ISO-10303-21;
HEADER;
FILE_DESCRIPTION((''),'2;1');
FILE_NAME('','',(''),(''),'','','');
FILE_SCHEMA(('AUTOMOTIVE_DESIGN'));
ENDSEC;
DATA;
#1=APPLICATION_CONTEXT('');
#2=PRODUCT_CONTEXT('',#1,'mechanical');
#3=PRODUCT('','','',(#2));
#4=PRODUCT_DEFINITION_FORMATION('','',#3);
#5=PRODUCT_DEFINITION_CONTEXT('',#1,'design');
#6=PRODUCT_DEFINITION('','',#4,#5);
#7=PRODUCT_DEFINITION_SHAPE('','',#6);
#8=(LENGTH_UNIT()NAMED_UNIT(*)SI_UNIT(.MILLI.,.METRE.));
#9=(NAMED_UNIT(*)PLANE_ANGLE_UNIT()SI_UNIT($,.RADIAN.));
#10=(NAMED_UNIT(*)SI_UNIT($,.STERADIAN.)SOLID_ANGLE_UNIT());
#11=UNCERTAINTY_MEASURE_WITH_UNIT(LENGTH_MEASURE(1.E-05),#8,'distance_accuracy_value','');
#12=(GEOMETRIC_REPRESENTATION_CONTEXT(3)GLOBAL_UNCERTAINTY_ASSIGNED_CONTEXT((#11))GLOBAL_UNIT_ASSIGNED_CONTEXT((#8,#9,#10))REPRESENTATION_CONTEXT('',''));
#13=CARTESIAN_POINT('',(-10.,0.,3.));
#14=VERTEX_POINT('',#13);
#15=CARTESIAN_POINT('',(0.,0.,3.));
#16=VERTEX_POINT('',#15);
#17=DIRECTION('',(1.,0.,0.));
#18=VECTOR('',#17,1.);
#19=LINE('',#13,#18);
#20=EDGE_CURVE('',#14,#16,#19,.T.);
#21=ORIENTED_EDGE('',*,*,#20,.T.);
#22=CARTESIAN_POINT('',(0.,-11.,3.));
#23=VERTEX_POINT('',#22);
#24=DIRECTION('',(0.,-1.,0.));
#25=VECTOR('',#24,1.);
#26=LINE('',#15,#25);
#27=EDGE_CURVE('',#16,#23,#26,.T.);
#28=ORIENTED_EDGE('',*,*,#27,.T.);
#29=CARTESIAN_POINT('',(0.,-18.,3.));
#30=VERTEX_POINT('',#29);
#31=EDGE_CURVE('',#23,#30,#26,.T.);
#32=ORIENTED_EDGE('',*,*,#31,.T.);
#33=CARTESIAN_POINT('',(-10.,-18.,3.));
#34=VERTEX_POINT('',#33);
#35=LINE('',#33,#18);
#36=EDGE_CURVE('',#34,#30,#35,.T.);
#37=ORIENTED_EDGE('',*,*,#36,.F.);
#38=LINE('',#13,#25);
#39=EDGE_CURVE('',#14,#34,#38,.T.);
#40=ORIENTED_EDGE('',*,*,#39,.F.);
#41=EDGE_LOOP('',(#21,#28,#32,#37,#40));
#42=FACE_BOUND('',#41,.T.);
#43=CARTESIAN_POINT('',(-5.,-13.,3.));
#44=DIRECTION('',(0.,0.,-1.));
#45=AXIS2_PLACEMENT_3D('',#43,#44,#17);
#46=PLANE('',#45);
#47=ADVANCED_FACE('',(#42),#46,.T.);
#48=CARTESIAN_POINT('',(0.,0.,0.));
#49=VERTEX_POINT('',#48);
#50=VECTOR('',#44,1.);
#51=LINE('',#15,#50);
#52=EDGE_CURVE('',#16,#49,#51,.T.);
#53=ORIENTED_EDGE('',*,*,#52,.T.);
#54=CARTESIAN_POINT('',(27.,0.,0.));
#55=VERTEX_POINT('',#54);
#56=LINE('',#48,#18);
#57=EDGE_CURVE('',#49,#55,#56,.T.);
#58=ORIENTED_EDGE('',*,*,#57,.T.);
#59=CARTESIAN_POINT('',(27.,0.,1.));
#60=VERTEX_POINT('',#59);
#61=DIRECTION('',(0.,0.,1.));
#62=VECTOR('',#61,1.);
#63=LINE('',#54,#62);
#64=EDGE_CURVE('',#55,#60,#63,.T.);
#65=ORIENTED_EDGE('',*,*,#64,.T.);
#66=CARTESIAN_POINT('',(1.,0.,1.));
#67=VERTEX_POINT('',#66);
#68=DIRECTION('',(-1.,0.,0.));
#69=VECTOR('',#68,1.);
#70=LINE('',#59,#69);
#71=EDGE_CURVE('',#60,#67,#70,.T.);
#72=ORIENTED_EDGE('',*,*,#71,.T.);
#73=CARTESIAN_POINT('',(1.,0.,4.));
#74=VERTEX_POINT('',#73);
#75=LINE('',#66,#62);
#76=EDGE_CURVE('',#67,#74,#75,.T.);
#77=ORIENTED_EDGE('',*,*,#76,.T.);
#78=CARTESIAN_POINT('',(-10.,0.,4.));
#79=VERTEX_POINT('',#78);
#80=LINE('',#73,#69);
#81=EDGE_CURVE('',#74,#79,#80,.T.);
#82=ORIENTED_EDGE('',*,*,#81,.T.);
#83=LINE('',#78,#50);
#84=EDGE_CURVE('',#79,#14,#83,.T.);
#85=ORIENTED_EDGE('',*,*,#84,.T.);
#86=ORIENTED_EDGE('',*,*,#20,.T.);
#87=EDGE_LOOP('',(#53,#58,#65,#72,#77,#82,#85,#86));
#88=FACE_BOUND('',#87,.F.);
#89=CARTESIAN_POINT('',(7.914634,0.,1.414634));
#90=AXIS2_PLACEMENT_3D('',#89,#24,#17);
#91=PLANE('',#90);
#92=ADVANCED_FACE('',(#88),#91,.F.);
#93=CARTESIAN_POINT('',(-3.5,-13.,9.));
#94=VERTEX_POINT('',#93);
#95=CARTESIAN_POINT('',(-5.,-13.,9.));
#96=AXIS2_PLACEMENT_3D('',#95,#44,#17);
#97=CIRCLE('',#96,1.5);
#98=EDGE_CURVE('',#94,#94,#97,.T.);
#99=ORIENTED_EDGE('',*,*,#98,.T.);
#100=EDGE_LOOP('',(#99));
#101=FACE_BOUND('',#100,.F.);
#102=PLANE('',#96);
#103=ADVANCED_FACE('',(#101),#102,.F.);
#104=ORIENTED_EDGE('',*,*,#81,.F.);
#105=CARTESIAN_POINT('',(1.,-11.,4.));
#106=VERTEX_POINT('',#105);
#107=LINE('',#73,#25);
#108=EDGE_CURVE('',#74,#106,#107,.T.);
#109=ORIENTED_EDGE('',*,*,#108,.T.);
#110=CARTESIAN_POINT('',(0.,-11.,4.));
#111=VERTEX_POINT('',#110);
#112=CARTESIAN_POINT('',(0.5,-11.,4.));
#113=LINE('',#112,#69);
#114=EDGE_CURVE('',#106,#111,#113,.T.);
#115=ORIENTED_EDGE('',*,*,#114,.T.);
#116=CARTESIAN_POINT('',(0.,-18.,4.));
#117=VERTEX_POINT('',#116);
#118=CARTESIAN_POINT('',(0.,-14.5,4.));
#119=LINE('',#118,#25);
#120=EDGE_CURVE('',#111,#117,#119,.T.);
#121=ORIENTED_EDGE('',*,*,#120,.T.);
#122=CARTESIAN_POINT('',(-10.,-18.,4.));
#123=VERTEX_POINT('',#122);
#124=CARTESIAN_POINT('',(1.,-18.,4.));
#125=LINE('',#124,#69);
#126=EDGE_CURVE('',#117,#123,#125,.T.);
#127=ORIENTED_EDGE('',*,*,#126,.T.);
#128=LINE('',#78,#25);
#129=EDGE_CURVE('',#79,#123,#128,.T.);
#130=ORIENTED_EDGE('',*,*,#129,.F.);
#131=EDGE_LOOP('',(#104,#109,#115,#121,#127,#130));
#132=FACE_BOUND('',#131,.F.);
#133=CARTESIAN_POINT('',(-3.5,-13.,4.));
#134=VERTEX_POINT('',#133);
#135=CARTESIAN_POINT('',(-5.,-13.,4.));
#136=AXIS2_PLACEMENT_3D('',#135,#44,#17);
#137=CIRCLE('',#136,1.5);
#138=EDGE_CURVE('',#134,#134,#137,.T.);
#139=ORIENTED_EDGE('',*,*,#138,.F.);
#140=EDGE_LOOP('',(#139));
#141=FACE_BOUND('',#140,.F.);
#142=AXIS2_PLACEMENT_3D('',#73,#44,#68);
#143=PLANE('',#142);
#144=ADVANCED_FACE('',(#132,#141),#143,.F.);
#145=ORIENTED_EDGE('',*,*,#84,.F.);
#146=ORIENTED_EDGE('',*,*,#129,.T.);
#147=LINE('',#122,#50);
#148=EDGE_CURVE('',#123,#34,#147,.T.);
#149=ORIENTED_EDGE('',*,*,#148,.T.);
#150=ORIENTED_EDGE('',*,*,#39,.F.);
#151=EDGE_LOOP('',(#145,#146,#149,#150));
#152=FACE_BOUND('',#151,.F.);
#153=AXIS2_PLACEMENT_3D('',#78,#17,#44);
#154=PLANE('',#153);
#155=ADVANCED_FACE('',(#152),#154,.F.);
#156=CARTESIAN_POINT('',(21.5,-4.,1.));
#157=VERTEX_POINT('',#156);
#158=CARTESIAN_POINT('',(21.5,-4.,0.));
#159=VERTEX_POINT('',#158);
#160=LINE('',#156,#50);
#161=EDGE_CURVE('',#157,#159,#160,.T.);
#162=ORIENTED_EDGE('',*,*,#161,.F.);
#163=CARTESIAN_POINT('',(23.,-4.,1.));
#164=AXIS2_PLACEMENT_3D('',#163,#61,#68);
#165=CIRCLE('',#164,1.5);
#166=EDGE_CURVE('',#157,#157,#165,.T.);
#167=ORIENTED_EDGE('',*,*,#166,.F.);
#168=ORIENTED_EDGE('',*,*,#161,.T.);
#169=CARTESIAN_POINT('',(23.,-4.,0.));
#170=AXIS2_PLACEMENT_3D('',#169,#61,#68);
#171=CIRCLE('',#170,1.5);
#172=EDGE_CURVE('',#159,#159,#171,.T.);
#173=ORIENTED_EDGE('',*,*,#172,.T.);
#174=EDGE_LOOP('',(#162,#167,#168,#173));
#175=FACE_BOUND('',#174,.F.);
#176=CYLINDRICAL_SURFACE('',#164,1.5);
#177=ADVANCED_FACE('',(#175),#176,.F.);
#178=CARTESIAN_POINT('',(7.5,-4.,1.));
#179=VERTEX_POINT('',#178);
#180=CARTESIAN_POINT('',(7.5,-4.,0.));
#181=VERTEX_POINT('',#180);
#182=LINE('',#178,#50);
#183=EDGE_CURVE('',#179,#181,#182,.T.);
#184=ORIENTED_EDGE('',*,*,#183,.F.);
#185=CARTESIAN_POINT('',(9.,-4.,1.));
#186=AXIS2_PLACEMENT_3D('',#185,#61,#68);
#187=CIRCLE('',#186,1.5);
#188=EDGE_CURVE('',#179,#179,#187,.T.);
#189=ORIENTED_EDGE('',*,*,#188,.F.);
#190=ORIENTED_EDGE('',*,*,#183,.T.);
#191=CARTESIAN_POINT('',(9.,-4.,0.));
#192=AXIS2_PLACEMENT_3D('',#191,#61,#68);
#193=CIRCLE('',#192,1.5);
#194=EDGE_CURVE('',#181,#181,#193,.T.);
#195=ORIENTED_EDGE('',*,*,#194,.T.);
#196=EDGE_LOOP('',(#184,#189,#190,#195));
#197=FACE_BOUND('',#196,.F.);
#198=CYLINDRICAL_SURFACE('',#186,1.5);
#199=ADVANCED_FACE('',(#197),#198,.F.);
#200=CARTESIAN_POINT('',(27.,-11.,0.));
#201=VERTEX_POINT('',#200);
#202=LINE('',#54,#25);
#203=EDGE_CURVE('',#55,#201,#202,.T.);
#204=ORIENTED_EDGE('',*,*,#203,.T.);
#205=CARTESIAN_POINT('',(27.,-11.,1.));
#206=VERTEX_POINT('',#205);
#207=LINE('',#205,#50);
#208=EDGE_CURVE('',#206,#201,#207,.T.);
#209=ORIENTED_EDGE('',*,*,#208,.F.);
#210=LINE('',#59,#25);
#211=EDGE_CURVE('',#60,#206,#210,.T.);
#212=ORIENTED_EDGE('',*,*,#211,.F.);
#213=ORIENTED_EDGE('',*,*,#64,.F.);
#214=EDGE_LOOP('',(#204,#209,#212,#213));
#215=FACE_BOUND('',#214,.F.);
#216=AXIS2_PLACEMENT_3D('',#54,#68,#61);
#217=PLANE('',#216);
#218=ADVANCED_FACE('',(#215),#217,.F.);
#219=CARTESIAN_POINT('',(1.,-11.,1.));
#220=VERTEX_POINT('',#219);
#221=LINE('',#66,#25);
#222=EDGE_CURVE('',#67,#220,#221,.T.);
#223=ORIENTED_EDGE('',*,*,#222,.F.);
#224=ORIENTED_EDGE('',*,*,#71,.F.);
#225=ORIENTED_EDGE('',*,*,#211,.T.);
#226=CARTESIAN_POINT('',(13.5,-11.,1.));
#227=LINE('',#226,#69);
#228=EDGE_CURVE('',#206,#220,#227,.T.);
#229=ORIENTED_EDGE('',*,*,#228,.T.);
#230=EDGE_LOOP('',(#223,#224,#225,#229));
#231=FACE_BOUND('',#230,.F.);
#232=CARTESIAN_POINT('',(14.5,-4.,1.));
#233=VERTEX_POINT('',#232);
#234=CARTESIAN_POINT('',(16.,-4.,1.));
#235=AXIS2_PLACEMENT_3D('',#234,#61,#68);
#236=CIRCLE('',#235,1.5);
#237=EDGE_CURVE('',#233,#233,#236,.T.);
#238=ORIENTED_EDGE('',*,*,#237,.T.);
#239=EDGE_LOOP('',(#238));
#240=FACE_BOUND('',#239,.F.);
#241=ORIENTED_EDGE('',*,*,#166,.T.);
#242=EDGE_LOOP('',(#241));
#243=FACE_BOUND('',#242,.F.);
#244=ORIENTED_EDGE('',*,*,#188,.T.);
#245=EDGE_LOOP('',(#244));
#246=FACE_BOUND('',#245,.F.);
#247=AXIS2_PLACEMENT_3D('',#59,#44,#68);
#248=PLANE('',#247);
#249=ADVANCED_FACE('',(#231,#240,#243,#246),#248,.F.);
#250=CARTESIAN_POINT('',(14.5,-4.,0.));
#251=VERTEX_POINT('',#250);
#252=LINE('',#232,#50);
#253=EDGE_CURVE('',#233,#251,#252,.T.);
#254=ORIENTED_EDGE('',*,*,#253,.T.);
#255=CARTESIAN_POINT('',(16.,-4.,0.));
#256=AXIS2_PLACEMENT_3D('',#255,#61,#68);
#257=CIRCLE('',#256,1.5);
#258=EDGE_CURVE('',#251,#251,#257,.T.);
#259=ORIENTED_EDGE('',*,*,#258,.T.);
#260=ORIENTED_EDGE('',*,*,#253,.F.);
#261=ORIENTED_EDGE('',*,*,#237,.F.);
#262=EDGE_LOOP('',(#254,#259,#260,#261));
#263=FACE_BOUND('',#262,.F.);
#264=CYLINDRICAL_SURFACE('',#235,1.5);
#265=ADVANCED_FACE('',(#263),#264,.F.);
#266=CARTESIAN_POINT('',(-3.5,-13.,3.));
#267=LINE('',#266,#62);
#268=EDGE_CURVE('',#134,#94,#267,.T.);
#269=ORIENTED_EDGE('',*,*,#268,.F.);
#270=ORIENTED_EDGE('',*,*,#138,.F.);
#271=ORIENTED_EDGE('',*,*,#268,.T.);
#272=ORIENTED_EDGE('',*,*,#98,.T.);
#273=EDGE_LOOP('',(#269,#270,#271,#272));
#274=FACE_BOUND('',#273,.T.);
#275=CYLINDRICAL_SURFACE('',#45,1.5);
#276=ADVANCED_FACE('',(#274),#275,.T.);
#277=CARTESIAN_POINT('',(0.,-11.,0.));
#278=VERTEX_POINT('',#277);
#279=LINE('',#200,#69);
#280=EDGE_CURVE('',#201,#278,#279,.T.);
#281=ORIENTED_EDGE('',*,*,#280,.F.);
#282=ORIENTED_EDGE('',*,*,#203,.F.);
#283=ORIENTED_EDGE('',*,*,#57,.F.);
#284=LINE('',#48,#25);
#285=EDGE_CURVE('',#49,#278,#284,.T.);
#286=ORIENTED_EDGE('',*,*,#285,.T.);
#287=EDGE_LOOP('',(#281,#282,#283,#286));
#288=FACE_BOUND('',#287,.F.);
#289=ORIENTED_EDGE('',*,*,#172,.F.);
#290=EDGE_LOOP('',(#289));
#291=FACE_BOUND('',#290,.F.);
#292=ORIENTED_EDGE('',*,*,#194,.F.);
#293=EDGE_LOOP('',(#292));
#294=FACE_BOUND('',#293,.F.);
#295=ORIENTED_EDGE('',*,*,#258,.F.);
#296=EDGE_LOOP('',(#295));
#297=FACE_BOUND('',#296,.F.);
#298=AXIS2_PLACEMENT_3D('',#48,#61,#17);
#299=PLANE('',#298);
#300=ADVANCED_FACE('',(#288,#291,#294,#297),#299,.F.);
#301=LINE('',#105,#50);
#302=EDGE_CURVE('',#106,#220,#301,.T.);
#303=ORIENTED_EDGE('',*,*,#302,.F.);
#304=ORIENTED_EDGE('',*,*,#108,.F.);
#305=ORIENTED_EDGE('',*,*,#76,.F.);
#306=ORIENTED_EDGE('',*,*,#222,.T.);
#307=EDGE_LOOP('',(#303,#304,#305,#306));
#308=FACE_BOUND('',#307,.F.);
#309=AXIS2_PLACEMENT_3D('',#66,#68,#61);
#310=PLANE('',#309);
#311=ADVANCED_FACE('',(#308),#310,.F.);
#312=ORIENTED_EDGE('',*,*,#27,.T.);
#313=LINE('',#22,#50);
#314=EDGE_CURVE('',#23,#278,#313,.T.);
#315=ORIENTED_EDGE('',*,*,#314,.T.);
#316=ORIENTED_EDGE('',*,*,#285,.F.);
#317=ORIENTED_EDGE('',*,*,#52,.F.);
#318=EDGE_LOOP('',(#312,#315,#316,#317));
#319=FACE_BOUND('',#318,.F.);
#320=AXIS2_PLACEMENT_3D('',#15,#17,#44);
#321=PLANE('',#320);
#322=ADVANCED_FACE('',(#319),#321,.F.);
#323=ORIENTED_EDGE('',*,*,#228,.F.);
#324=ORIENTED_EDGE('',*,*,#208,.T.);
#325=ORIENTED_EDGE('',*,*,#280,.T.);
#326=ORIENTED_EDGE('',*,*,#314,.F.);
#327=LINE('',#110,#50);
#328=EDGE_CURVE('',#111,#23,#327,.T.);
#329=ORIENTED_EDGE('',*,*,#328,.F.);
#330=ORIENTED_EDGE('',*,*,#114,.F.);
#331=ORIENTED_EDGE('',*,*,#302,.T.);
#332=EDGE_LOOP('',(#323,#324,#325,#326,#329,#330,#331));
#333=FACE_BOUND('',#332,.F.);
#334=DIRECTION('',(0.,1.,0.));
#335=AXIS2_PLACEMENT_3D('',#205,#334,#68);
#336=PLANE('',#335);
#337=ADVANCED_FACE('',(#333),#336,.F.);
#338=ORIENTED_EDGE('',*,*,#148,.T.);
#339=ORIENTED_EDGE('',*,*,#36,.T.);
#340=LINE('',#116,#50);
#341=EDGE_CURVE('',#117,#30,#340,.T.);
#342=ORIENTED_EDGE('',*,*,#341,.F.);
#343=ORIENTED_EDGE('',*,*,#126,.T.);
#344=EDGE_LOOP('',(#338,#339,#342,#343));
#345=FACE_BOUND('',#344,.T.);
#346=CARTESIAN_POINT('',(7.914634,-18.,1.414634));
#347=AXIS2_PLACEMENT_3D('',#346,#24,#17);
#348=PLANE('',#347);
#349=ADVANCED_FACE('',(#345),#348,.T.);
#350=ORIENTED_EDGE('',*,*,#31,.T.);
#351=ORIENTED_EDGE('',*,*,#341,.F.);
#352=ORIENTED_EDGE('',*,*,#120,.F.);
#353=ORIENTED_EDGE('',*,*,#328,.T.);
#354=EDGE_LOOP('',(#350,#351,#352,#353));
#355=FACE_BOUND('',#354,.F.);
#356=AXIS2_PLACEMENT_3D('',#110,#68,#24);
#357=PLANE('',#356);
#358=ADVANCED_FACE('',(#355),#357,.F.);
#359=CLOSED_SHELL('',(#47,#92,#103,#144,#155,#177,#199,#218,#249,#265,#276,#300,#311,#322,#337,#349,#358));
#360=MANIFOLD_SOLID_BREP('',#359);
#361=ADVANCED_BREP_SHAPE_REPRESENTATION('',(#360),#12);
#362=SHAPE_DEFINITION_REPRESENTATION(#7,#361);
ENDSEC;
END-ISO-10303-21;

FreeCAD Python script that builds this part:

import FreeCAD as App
import Part
import Sketcher
Q = App.Units.Quantity

doc = App.newDocument("Part")
params = doc.addObject("Spreadsheet::Sheet", "Params")
for row, (alias, value) in enumerate([
    ("sketch1_width", "27 mm"),
    ("sketch1_width2", "26 mm"),
    ("sketch1_width3", "11 mm"),
    ("sketch1_height", "1 mm"),
    ("sketch1_height2", "3 mm"),
    ("pad1_length", "18 mm"),
    ("sketch2_width", "27 mm"),
    ("sketch2_height", "7 mm"),
    ("pocket1_length", "10 mm"),
    ("sketch3_width", "1 mm"),
    ("sketch3_height", "7 mm"),
    ("sketch4_diameter", "3 mm"),
    ("sketch5_diameter", "3 mm"),
    ("pad2_length", "6 mm"),
], start=1):
    params.set(f"A{row}", alias)
    params.set(f"B{row}", "=" + value)
    params.setAlias(f"B{row}", alias)

body = doc.addObject("PartDesign::Body", "Body")

# Sketch on XZ plane
sketch1 = doc.addObject("Sketcher::SketchObject", "Sketch")
body.addObject(sketch1)
sketch1.AttachmentSupport = (doc.XZ_Plane, [""])
sketch1.MapMode = "FlatFace"
sketch1.addGeometry(Part.LineSegment(App.Vector(0, 0, 0), App.Vector(27, 0, 0)), False)
sketch1.addGeometry(Part.LineSegment(App.Vector(27, 0, 0), App.Vector(27, 1, 0)), False)
sketch1.addGeometry(Part.LineSegment(App.Vector(27, 1, 0), App.Vector(1, 1, 0)), False)
sketch1.addGeometry(Part.LineSegment(App.Vector(1, 1, 0), App.Vector(1, 4, 0)), False)
sketch1.addGeometry(Part.LineSegment(App.Vector(1, 4, 0), App.Vector(-10, 4, 0)), False)
sketch1.addGeometry(Part.LineSegment(App.Vector(-10, 4, 0), App.Vector(-10, 3, 0)), False)
sketch1.addGeometry(Part.LineSegment(App.Vector(-10, 3, 0), App.Vector(0, 3, 0)), False)
sketch1.addGeometry(Part.LineSegment(App.Vector(0, 3, 0), App.Vector(0, 0, 0)), False)
sketch1.addConstraint(Sketcher.Constraint("Coincident", 0, 2, 1, 1))
sketch1.addConstraint(Sketcher.Constraint("Coincident", 1, 2, 2, 1))
sketch1.addConstraint(Sketcher.Constraint("Coincident", 2, 2, 3, 1))
sketch1.addConstraint(Sketcher.Constraint("Coincident", 3, 2, 4, 1))
sketch1.addConstraint(Sketcher.Constraint("Coincident", 4, 2, 5, 1))
sketch1.addConstraint(Sketcher.Constraint("Coincident", 5, 2, 6, 1))
sketch1.addConstraint(Sketcher.Constraint("Coincident", 6, 2, 7, 1))
sketch1.addConstraint(Sketcher.Constraint("Coincident", 7, 2, 0, 1))
sketch1.addConstraint(Sketcher.Constraint("Horizontal", 0))
sketch1.addConstraint(Sketcher.Constraint("Vertical", 1))
sketch1.addConstraint(Sketcher.Constraint("Horizontal", 2))
sketch1.addConstraint(Sketcher.Constraint("Vertical", 3))
sketch1.addConstraint(Sketcher.Constraint("Horizontal", 4))
sketch1.addConstraint(Sketcher.Constraint("Vertical", 5))
sketch1.addConstraint(Sketcher.Constraint("Horizontal", 6))
sketch1.addConstraint(Sketcher.Constraint("Vertical", 7))
sketch1.addConstraint(Sketcher.Constraint("Coincident", 7, 2, -1, 1))
sketch1.addConstraint(Sketcher.Constraint("Equal", 1, 5))
sketch1.addConstraint(Sketcher.Constraint("DistanceX", 0, 1, 0, 2, Q("27 mm")))
sketch1.addConstraint(Sketcher.Constraint("DistanceX", 2, 2, 2, 1, Q("26 mm")))
sketch1.addConstraint(Sketcher.Constraint("DistanceX", 4, 2, 4, 1, Q("11 mm")))
sketch1.addConstraint(Sketcher.Constraint("DistanceY", 1, 1, 1, 2, Q("1 mm")))
sketch1.addConstraint(Sketcher.Constraint("DistanceY", 3, 1, 3, 2, Q("3 mm")))
sketch1.setExpression("Constraints[18]", "Params.sketch1_width")
sketch1.setExpression("Constraints[19]", "Params.sketch1_width2")
sketch1.setExpression("Constraints[20]", "Params.sketch1_width3")
sketch1.setExpression("Constraints[21]", "Params.sketch1_height")
sketch1.setExpression("Constraints[22]", "Params.sketch1_height2")
pad1 = doc.addObject("PartDesign::Pad", "Pad")
body.addObject(pad1)
pad1.Profile = sketch1
pad1.setExpression("Length", "Params.pad1_length")

# Sketch on XY plane
sketch2 = doc.addObject("Sketcher::SketchObject", "Sketch001")
body.addObject(sketch2)
sketch2.AttachmentSupport = (doc.XY_Plane, [""])
sketch2.MapMode = "FlatFace"
sketch2.AttachmentOffset = App.Placement(App.Vector(0, 0, 1), App.Rotation())
sketch2.addGeometry(Part.LineSegment(App.Vector(27, -18, 0), App.Vector(27, -11, 0)), False)
sketch2.addGeometry(Part.LineSegment(App.Vector(27, -11, 0), App.Vector(0, -11, 0)), False)
sketch2.addGeometry(Part.LineSegment(App.Vector(0, -11, 0), App.Vector(0, -18, 0)), False)
sketch2.addGeometry(Part.LineSegment(App.Vector(0, -18, 0), App.Vector(27, -18, 0)), False)
sketch2.addConstraint(Sketcher.Constraint("Coincident", 0, 2, 1, 1))
sketch2.addConstraint(Sketcher.Constraint("Coincident", 1, 2, 2, 1))
sketch2.addConstraint(Sketcher.Constraint("Coincident", 2, 2, 3, 1))
sketch2.addConstraint(Sketcher.Constraint("Coincident", 3, 2, 0, 1))
sketch2.addConstraint(Sketcher.Constraint("Vertical", 0))
sketch2.addConstraint(Sketcher.Constraint("Horizontal", 1))
sketch2.addConstraint(Sketcher.Constraint("Vertical", 2))
sketch2.addConstraint(Sketcher.Constraint("Horizontal", 3))
sketch2.addConstraint(Sketcher.Constraint("PointOnObject", 1, 2, -2))
sketch2.addConstraint(Sketcher.Constraint("DistanceX", 1, 2, 1, 1, Q("27 mm")))
sketch2.addConstraint(Sketcher.Constraint("DistanceY", 0, 1, 0, 2, Q("7 mm")))
sketch2.addConstraint(Sketcher.Constraint("DistanceY", 0, 2, -1, 1, Q("11 mm")))
sketch2.setExpression("Constraints[9]", "Params.sketch2_width")
sketch2.setExpression("Constraints[10]", "Params.sketch2_height")
pocket1 = doc.addObject("PartDesign::Pocket", "Pocket")
body.addObject(pocket1)
pocket1.Profile = sketch2
pocket1.setExpression("Length", "Params.pocket1_length")

# Sketch on XY plane
sketch3 = doc.addObject("Sketcher::SketchObject", "Sketch002")
body.addObject(sketch3)
sketch3.AttachmentSupport = (doc.XY_Plane, [""])
sketch3.MapMode = "FlatFace"
sketch3.AttachmentOffset = App.Placement(App.Vector(0, 0, 4), App.Rotation())
sketch3.addGeometry(Part.LineSegment(App.Vector(1, -18, 0), App.Vector(1, -11, 0)), False)
sketch3.addGeometry(Part.LineSegment(App.Vector(1, -11, 0), App.Vector(0, -11, 0)), False)
sketch3.addGeometry(Part.LineSegment(App.Vector(0, -11, 0), App.Vector(0, -18, 0)), False)
sketch3.addGeometry(Part.LineSegment(App.Vector(0, -18, 0), App.Vector(1, -18, 0)), False)
sketch3.addConstraint(Sketcher.Constraint("Coincident", 0, 2, 1, 1))
sketch3.addConstraint(Sketcher.Constraint("Coincident", 1, 2, 2, 1))
sketch3.addConstraint(Sketcher.Constraint("Coincident", 2, 2, 3, 1))
sketch3.addConstraint(Sketcher.Constraint("Coincident", 3, 2, 0, 1))
sketch3.addConstraint(Sketcher.Constraint("Vertical", 0))
sketch3.addConstraint(Sketcher.Constraint("Horizontal", 1))
sketch3.addConstraint(Sketcher.Constraint("Vertical", 2))
sketch3.addConstraint(Sketcher.Constraint("Horizontal", 3))
sketch3.addConstraint(Sketcher.Constraint("PointOnObject", 1, 2, -2))
sketch3.addConstraint(Sketcher.Constraint("DistanceX", 1, 2, 1, 1, Q("1 mm")))
sketch3.addConstraint(Sketcher.Constraint("DistanceY", 0, 1, 0, 2, Q("7 mm")))
sketch3.addConstraint(Sketcher.Constraint("DistanceY", 0, 2, -1, 1, Q("11 mm")))
sketch3.setExpression("Constraints[9]", "Params.sketch3_width")
sketch3.setExpression("Constraints[10]", "Params.sketch3_height")
pocket2 = doc.addObject("PartDesign::Pocket", "Pocket001")
body.addObject(pocket2)
pocket2.Profile = sketch3
pocket2.Type = "ThroughAll"

# Sketch on XY plane
sketch4 = doc.addObject("Sketcher::SketchObject", "Sketch003")
body.addObject(sketch4)
sketch4.AttachmentSupport = (doc.XY_Plane, [""])
sketch4.MapMode = "FlatFace"
sketch4.AttachmentOffset = App.Placement(App.Vector(0, 0, 1), App.Rotation())
sketch4.addGeometry(Part.Circle(App.Vector(23, -4, 0), App.Vector(0, 0, 1), 1.5), False)
sketch4.addGeometry(Part.Circle(App.Vector(16, -4, 0), App.Vector(0, 0, 1), 1.5), False)
sketch4.addGeometry(Part.Circle(App.Vector(9, -4, 0), App.Vector(0, 0, 1), 1.5), False)
sketch4.addConstraint(Sketcher.Constraint("Equal", 0, 1))
sketch4.addConstraint(Sketcher.Constraint("Equal", 1, 2))
sketch4.addConstraint(Sketcher.Constraint("Horizontal", 0, 3, 1, 3))
sketch4.addConstraint(Sketcher.Constraint("Horizontal", 1, 3, 2, 3))
sketch4.addConstraint(Sketcher.Constraint("Diameter", 0, Q("3 mm")))
sketch4.addConstraint(Sketcher.Constraint("DistanceX", -1, 1, 0, 3, Q("23 mm")))
sketch4.addConstraint(Sketcher.Constraint("DistanceY", 0, 3, -1, 1, Q("4 mm")))
sketch4.addConstraint(Sketcher.Constraint("DistanceX", -1, 1, 1, 3, Q("16 mm")))
sketch4.addConstraint(Sketcher.Constraint("DistanceX", -1, 1, 2, 3, Q("9 mm")))
sketch4.setExpression("Constraints[4]", "Params.sketch4_diameter")
pocket3 = doc.addObject("PartDesign::Pocket", "Pocket002")
body.addObject(pocket3)
pocket3.Profile = sketch4
pocket3.Type = "ThroughAll"

# Sketch on XY plane
sketch5 = doc.addObject("Sketcher::SketchObject", "Sketch004")
body.addObject(sketch5)
sketch5.AttachmentSupport = (doc.XY_Plane, [""])
sketch5.MapMode = "FlatFace"
sketch5.AttachmentOffset = App.Placement(App.Vector(0, 0, 3), App.Rotation())
sketch5.addGeometry(Part.Circle(App.Vector(-5, -13, 0), App.Vector(0, 0, 1), 1.5), False)
sketch5.addConstraint(Sketcher.Constraint("Diameter", 0, Q("3 mm")))
sketch5.addConstraint(Sketcher.Constraint("DistanceX", 0, 3, -1, 1, Q("5 mm")))
sketch5.addConstraint(Sketcher.Constraint("DistanceY", 0, 3, -1, 1, Q("13 mm")))
sketch5.setExpression("Constraints[0]", "Params.sketch5_diameter")
pad2 = doc.addObject("PartDesign::Pad", "Pad001")
body.addObject(pad2)
pad2.Profile = sketch5
pad2.setExpression("Length", "Params.pad2_length")

doc.recompute()
